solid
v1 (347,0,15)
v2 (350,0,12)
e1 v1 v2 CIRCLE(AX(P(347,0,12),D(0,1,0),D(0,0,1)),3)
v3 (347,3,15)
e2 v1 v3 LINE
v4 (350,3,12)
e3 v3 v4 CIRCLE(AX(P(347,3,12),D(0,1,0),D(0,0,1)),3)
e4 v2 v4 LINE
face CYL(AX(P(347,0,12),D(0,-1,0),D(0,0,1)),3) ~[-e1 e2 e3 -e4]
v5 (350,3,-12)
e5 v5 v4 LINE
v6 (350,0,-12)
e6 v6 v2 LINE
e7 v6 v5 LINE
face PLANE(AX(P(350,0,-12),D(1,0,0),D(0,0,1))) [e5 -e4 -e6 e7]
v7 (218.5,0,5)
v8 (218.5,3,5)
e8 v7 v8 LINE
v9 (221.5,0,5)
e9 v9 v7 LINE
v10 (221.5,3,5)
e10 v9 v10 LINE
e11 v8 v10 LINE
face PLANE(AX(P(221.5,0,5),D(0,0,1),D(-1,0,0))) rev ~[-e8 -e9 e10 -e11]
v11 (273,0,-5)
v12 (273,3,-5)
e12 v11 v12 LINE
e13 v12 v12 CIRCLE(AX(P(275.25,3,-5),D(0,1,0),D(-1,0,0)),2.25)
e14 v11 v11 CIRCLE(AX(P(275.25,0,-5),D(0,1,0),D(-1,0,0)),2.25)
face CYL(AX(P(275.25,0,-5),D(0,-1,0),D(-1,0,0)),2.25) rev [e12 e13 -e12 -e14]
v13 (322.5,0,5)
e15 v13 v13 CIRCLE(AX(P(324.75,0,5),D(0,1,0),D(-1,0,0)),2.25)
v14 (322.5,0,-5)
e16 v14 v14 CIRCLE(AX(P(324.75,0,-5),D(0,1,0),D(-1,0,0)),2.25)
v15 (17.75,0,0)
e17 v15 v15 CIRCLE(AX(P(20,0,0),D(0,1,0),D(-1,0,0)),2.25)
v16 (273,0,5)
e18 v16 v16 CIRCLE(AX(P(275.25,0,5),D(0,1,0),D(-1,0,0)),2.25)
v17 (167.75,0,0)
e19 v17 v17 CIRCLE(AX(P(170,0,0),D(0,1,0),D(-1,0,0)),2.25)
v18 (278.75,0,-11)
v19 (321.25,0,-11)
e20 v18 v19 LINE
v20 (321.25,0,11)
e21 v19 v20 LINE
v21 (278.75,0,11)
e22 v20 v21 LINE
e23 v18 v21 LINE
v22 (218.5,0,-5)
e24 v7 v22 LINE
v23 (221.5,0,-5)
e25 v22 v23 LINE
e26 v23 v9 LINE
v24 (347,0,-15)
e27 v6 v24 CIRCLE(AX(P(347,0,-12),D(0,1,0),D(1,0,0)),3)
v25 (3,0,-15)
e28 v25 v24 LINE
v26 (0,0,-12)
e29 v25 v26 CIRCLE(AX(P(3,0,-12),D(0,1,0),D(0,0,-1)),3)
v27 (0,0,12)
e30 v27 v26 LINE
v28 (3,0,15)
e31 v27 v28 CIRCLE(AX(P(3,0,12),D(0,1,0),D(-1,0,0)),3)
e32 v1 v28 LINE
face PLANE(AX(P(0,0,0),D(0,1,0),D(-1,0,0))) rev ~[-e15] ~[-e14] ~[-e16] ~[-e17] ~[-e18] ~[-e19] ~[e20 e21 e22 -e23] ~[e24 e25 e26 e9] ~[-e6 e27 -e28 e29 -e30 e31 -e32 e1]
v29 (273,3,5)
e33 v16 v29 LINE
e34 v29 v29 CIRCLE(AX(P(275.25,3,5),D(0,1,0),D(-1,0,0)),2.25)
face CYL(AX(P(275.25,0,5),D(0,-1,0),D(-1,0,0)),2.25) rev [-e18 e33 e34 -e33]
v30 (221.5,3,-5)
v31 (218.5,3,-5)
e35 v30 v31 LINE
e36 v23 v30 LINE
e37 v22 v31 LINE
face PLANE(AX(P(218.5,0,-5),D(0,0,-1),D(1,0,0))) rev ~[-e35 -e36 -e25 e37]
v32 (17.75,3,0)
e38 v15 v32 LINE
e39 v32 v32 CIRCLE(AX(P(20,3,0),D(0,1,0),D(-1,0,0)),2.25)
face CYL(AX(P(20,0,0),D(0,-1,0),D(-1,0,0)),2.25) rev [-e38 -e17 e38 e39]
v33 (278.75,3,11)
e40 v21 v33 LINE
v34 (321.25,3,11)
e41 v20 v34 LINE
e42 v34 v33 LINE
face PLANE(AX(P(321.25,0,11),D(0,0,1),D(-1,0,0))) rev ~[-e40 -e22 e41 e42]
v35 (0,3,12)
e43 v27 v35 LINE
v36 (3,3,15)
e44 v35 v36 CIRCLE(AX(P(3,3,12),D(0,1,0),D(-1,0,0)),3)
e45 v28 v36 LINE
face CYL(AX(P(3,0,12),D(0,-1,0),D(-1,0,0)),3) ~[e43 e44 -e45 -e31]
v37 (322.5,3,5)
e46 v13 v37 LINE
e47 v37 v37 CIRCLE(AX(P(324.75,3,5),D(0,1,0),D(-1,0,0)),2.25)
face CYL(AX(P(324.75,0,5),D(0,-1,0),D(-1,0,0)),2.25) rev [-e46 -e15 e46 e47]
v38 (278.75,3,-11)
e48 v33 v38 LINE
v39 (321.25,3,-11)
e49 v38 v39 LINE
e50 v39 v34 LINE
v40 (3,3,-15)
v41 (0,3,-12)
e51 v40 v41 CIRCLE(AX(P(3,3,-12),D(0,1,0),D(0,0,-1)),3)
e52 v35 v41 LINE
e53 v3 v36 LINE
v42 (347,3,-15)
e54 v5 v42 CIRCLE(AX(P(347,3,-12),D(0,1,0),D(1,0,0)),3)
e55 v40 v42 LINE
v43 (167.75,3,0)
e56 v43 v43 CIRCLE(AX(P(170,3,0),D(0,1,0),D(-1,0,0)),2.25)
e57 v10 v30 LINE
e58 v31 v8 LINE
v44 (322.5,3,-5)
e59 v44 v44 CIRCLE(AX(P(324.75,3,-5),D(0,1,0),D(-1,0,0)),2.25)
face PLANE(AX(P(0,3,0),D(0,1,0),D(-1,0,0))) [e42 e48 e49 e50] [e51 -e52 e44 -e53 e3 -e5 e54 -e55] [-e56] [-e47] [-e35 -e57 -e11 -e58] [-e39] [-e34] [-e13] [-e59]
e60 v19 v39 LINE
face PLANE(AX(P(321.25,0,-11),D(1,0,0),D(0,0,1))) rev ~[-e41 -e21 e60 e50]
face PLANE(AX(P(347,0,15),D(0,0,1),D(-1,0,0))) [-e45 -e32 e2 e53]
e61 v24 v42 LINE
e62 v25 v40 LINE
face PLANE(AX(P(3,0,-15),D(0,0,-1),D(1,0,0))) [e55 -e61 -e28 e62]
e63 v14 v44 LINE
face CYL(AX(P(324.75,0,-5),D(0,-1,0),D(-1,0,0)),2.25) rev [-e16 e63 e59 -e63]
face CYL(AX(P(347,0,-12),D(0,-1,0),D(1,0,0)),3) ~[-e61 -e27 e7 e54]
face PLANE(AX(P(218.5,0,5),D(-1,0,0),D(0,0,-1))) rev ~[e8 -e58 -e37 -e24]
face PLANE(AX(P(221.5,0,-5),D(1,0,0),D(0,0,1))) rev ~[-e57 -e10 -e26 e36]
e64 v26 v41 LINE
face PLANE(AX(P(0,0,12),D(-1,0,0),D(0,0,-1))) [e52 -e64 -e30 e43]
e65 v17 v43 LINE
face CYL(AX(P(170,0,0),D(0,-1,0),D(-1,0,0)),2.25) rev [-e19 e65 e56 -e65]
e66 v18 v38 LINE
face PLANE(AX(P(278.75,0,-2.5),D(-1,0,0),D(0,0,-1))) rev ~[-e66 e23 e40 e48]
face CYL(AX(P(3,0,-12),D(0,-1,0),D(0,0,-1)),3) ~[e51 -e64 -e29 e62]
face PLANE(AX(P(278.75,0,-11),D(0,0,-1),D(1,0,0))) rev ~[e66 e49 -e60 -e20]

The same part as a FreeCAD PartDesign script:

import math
import FreeCAD as App
import Part
import Sketcher
from FreeCAD import Vector
Q = App.Units.Quantity

doc = App.newDocument("Part")
body = doc.addObject("PartDesign::Body", "Body")

# Sketch on XZ plane
sketch1 = doc.addObject("Sketcher::SketchObject", "Sketch")
body.addObject(sketch1)
sketch1.AttachmentSupport = (doc.XZ_Plane, [""])
sketch1.MapMode = "FlatFace"
sketch1.addGeometry(Part.LineSegment(Vector(347, -15, 0), Vector(3, -15, 0)), False)
sketch1.addGeometry(Part.ArcOfCircle(Part.Circle(Vector(3, -12, 0), Vector(0, 0, 1), 3), math.radians(180), math.radians(270)), False)
sketch1.addGeometry(Part.LineSegment(Vector(0, -12, 0), Vector(0, 12, 0)), False)
sketch1.addGeometry(Part.ArcOfCircle(Part.Circle(Vector(3, 12, 0), Vector(0, 0, 1), 3), math.radians(90), math.radians(180)), False)
sketch1.addGeometry(Part.LineSegment(Vector(3, 15, 0), Vector(347, 15, 0)), False)
sketch1.addGeometry(Part.ArcOfCircle(Part.Circle(Vector(347, 12, 0), Vector(0, 0, 1), 3), math.radians(0), math.radians(90)), False)
sketch1.addGeometry(Part.LineSegment(Vector(350, 12, 0), Vector(350, -12, 0)), False)
sketch1.addGeometry(Part.ArcOfCircle(Part.Circle(Vector(347, -12, 0), Vector(0, 0, 1), 3), math.radians(-90), math.radians(0)), False)
sketch1.addGeometry(Part.Circle(Vector(324.75, -5, 0), Vector(0, 0, 1), 2.25), False)
sketch1.addGeometry(Part.Circle(Vector(275.25, -5, 0), Vector(0, 0, 1), 2.25), False)
sketch1.addGeometry(Part.LineSegment(Vector(278.75, 11, 0), Vector(278.75, -11, 0)), False)
sketch1.addGeometry(Part.LineSegment(Vector(278.75, -11, 0), Vector(321.25, -11, 0)), False)
sketch1.addGeometry(Part.LineSegment(Vector(321.25, -11, 0), Vector(321.25, 11, 0)), False)
sketch1.addGeometry(Part.LineSegment(Vector(321.25, 11, 0), Vector(278.75, 11, 0)), False)
sketch1.addGeometry(Part.Circle(Vector(324.75, 5, 0), Vector(0, 0, 1), 2.25), False)
sketch1.addGeometry(Part.Circle(Vector(275.25, 5, 0), Vector(0, 0, 1), 2.25), False)
sketch1.addGeometry(Part.Circle(Vector(170, 0, 0), Vector(0, 0, 1), 2.25), False)
sketch1.addGeometry(Part.Circle(Vector(20, 0, 0), Vector(0, 0, 1), 2.25), False)
sketch1.addConstraint(Sketcher.Constraint("Tangent", 0, 2, 1, 2))
sketch1.addConstraint(Sketcher.Constraint("Tangent", 1, 1, 2, 1))
sketch1.addConstraint(Sketcher.Constraint("Tangent", 2, 2, 3, 2))
sketch1.addConstraint(Sketcher.Constraint("Tangent", 3, 1, 4, 1))
sketch1.addConstraint(Sketcher.Constraint("Tangent", 4, 2, 5, 2))
sketch1.addConstraint(Sketcher.Constraint("Tangent", 5, 1, 6, 1))
sketch1.addConstraint(Sketcher.Constraint("Tangent", 6, 2, 7, 2))
sketch1.addConstraint(Sketcher.Constraint("Tangent", 7, 1, 0, 1))
sketch1.addConstraint(Sketcher.Constraint("Coincident", 10, 2, 11, 1))
sketch1.addConstraint(Sketcher.Constraint("Coincident", 11, 2, 12, 1))
sketch1.addConstraint(Sketcher.Constraint("Coincident", 12, 2, 13, 1))
sketch1.addConstraint(Sketcher.Constraint("Coincident", 13, 2, 10, 1))
sketch1.addConstraint(Sketcher.Constraint("Horizontal", 0))
sketch1.addConstraint(Sketcher.Constraint("Vertical", 2))
sketch1.addConstraint(Sketcher.Constraint("Horizontal", 4))
sketch1.addConstraint(Sketcher.Constraint("Vertical", 6))
sketch1.addConstraint(Sketcher.Constraint("Vertical", 10))
sketch1.addConstraint(Sketcher.Constraint("Horizontal", 11))
sketch1.addConstraint(Sketcher.Constraint("Vertical", 12))
sketch1.addConstraint(Sketcher.Constraint("Horizontal", 13))
sketch1.addConstraint(Sketcher.Constraint("Equal", 1, 3))
sketch1.addConstraint(Sketcher.Constraint("Equal", 3, 5))
sketch1.addConstraint(Sketcher.Constraint("Equal", 5, 7))
sketch1.addConstraint(Sketcher.Constraint("Equal", 8, 9))
sketch1.addConstraint(Sketcher.Constraint("Equal", 9, 14))
sketch1.addConstraint(Sketcher.Constraint("Equal", 14, 15))
sketch1.addConstraint(Sketcher.Constraint("Equal", 15, 16))
sketch1.addConstraint(Sketcher.Constraint("Equal", 16, 17))
sketch1.addConstraint(Sketcher.Constraint("Symmetric", 1, 1, 2, 2, -1, 1))
sketch1.addConstraint(Sketcher.Constraint("Symmetric", 8, 3, 14, 3, -1))
sketch1.addConstraint(Sketcher.Constraint("Symmetric", 9, 3, 15, 3, -1))
sketch1.addConstraint(Sketcher.Constraint("PointOnObject", 16, 3, -1))
sketch1.addConstraint(Sketcher.Constraint("PointOnObject", 17, 3, -1))
sketch1.addConstraint(Sketcher.Constraint("Horizontal", 8, 3, 9, 3))
sketch1.addConstraint(Sketcher.Constraint("Radius", 1, Q("3 mm")))
sketch1.addConstraint(Sketcher.Constraint("Diameter", 8, Q("4.5 mm")))
sketch1.addConstraint(Sketcher.Constraint("DistanceY", 10, 2, 10, 1, Q("22 mm")))
sketch1.addConstraint(Sketcher.Constraint("DistanceX", 11, 1, 11, 2, Q("42.5 mm")))
sketch1.addConstraint(Sketcher.Constraint("DistanceY", 8, 3, -1, 1, Q("5 mm")))
sketch1.addConstraint(Sketcher.Constraint("DistanceX", -1, 1, 17, 3, Q("20 mm")))
sketch1.addConstraint(Sketcher.Constraint("DistanceX", -1, 1, 5, 1, Q("350 mm")))
sketch1.addConstraint(Sketcher.Constraint("DistanceX", 17, 3, 16, 3, Q("150 mm")))
sketch1.addConstraint(Sketcher.Constraint("DistanceY", 0, 2, 9, 3, Q("10 mm")))
sketch1.addConstraint(Sketcher.Constraint("DistanceX", 9, 3, 8, 3, Q("49.5 mm")))
sketch1.addConstraint(Sketcher.Constraint("DistanceY", 10, 2, -1, 1, Q("11 mm")))
sketch1.addConstraint(Sketcher.Constraint("DistanceX", 10, 2, 8, 3, Q("46 mm")))
sketch1.addConstraint(Sketcher.Constraint("DistanceX", -1, 1, 8, 3, Q("324.75 mm")))
pad1 = doc.addObject("PartDesign::Pad", "Pad")
body.addObject(pad1)
pad1.Profile = sketch1
pad1.Length = 3
pad1.Reversed = True

# Sketch on XZ plane
sketch2 = doc.addObject("Sketcher::SketchObject", "Sketch001")
body.addObject(sketch2)
sketch2.AttachmentSupport = (doc.XZ_Plane, [""])
sketch2.MapMode = "FlatFace"
sketch2.addGeometry(Part.LineSegment(Vector(221.5, -5, 0), Vector(221.5, 5, 0)), False)
sketch2.addGeometry(Part.LineSegment(Vector(221.5, 5, 0), Vector(218.5, 5, 0)), False)
sketch2.addGeometry(Part.LineSegment(Vector(218.5, 5, 0), Vector(218.5, -5, 0)), False)
sketch2.addGeometry(Part.LineSegment(Vector(218.5, -5, 0), Vector(221.5, -5, 0)), False)
sketch2.addConstraint(Sketcher.Constraint("Coincident", 0, 2, 1, 1))
sketch2.addConstraint(Sketcher.Constraint("Coincident", 1, 2, 2, 1))
sketch2.addConstraint(Sketcher.Constraint("Coincident", 2, 2, 3, 1))
sketch2.addConstraint(Sketcher.Constraint("Coincident", 3, 2, 0, 1))
sketch2.addConstraint(Sketcher.Constraint("Vertical", 0))
sketch2.addConstraint(Sketcher.Constraint("Horizontal", 1))
sketch2.addConstraint(Sketcher.Constraint("Vertical", 2))
sketch2.addConstraint(Sketcher.Constraint("Horizontal", 3))
sketch2.addConstraint(Sketcher.Constraint("DistanceX", 1, 2, 1, 1, Q("3 mm")))
sketch2.addConstraint(Sketcher.Constraint("DistanceY", 0, 1, 0, 2, Q("10 mm")))
sketch2.addConstraint(Sketcher.Constraint("DistanceY", -1, 1, 0, 2, Q("5 mm")))
sketch2.addConstraint(Sketcher.Constraint("DistanceX", -1, 1, 0, 2, Q("221.5 mm")))
pocket1 = doc.addObject("PartDesign::Pocket", "Pocket")
body.addObject(pocket1)
pocket1.Profile = sketch2
pocket1.Length = 10

doc.recompute()
